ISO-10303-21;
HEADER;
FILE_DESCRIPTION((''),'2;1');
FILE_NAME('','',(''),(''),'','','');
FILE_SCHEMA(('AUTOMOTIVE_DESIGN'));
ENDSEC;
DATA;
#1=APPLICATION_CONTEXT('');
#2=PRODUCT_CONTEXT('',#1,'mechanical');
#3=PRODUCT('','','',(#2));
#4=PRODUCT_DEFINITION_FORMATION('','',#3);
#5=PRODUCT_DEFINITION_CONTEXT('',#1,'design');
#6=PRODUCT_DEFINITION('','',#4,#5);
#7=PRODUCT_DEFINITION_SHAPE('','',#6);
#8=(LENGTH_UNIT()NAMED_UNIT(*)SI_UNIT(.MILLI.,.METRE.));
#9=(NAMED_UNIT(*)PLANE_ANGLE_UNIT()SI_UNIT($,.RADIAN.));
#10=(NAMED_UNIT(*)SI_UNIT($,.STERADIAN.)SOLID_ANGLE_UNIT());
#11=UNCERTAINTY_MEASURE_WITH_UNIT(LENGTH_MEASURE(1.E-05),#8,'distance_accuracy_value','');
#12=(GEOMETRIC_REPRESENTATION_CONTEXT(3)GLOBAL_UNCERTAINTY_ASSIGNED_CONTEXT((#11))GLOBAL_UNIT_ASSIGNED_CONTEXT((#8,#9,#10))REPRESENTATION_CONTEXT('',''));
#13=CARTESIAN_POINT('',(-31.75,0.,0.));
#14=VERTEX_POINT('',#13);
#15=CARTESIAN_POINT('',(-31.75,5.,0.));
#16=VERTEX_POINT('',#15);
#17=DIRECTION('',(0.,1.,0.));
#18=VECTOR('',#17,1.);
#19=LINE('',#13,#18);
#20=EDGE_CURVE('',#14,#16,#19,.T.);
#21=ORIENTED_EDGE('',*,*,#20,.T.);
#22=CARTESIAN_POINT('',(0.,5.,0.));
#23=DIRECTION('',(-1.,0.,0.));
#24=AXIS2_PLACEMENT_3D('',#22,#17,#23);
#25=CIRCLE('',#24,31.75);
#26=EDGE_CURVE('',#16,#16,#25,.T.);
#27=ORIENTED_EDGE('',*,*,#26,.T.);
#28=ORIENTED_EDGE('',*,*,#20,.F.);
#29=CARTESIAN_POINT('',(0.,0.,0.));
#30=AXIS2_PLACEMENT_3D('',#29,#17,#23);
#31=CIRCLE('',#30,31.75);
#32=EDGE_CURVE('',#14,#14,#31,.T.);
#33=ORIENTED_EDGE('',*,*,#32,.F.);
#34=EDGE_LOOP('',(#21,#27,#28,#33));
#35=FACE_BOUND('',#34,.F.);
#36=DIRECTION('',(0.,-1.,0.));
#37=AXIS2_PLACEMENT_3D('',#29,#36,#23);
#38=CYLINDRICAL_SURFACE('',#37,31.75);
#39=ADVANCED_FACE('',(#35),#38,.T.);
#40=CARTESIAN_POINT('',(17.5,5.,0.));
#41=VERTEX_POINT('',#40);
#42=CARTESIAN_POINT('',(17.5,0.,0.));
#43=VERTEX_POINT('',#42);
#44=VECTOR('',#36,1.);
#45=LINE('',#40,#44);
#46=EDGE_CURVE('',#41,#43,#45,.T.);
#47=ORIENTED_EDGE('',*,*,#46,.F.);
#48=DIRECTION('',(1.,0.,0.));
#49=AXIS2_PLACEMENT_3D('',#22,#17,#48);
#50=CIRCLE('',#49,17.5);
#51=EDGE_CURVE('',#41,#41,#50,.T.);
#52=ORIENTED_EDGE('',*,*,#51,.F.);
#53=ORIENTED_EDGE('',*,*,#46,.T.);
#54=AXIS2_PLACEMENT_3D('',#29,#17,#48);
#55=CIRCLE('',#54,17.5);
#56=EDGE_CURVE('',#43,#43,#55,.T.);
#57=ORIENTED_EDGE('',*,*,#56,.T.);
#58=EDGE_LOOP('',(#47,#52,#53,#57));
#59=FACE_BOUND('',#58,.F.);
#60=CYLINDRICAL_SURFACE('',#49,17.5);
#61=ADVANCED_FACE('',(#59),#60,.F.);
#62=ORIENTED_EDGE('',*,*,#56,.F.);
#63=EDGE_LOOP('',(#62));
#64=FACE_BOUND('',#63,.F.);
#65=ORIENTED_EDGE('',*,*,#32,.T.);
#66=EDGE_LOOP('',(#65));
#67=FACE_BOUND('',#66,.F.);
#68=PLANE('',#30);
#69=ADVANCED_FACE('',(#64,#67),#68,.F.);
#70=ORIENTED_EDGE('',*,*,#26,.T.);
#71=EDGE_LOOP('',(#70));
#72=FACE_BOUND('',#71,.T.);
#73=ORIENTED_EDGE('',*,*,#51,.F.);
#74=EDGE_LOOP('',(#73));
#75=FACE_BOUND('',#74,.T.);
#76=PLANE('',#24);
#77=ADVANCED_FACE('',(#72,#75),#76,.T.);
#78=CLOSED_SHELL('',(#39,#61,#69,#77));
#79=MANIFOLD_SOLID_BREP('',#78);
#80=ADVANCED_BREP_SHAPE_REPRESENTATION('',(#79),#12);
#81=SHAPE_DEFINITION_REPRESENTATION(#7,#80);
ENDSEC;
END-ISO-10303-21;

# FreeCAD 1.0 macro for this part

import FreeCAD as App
import Part
import Sketcher

V = App.Vector
Q = App.Units.Quantity

doc = App.newDocument("Part")
body = doc.addObject("PartDesign::Body", "Body")

# Sketch on XZ plane
sketch1 = body.newObject("Sketcher::SketchObject", "Sketch")
sketch1.AttachmentSupport = (doc.getObject("XZ_Plane"), [""])
sketch1.MapMode = "FlatFace"
sketch1.addGeometry(Part.Circle(V(0, 0, 0), V(0, 0, 1), 31.75), False)
sketch1.addConstraint([
    Sketcher.Constraint("Coincident", 0, 3, -1, 1),
    Sketcher.Constraint("Diameter", 0, Q("63.5 mm")),
])
pad1 = body.newObject("PartDesign::Pad", "Pad")
pad1.Profile = sketch1
pad1.Length = 5
pad1.Reversed = True

# Sketch on XZ plane
sketch2 = body.newObject("Sketcher::SketchObject", "Sketch001")
sketch2.AttachmentSupport = (doc.getObject("XZ_Plane"), [""])
sketch2.MapMode = "FlatFace"
sketch2.AttachmentOffset = App.Placement(V(0, 0, -5), App.Rotation())
sketch2.addGeometry(Part.Circle(V(0, 0, 0), V(0, 0, 1), 17.5), False)
sketch2.addConstraint([
    Sketcher.Constraint("Coincident", 0, 3, -1, 1),
    Sketcher.Constraint("Diameter", 0, Q("35 mm")),
])
pocket1 = body.newObject("PartDesign::Pocket", "Pocket")
pocket1.Profile = sketch2
pocket1.Type = "ThroughAll"
pocket1.Reversed = True

doc.recompute()
